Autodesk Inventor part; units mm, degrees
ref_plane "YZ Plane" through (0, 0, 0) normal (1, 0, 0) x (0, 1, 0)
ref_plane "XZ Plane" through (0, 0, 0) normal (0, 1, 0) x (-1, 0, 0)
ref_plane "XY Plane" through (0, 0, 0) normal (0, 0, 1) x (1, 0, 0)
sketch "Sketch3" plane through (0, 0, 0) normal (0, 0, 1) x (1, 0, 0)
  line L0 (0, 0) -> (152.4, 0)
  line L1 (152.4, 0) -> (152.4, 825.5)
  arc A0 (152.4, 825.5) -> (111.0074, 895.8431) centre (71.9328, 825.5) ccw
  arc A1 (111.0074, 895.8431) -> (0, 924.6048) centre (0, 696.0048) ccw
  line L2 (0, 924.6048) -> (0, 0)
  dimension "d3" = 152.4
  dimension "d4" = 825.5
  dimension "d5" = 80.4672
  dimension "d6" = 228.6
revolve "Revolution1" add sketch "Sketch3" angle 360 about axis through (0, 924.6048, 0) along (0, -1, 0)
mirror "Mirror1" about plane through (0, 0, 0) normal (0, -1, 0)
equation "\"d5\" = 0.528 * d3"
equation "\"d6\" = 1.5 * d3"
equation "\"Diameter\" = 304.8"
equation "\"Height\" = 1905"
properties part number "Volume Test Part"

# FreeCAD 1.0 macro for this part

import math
import FreeCAD as App
import Part
import Sketcher
from FreeCAD import Vector
Q = App.Units.Quantity

doc = App.newDocument("Part")
params = doc.addObject("Spreadsheet::Sheet", "Params")
for row, (alias, value) in enumerate([
    ("sketch1_radius", "9 in"),
    ("sketch1_width", "6 in"),
    ("sketch1_height", "32.5 in"),
    ("sketch1_radius2", "3.168 in"),
    ("revolution_angle", "360 deg"),
], start=1):
    params.set(f"A{row}", alias)
    params.set(f"B{row}", "=" + value)
    params.setAlias(f"B{row}", alias)

body = doc.addObject("PartDesign::Body", "Body")

# Sketch on XY plane
sketch1 = body.newObject("Sketcher::SketchObject", "Sketch")
sketch1.AttachmentSupport = (doc.getObject("XY_Plane"), [""])
sketch1.MapMode = "FlatFace"
sketch1.addGeometry([
    Part.LineSegment(Vector(0, 925, 0), Vector(0, 0, 0)),  # 0
    Part.LineSegment(Vector(0, 0, 0), Vector(152, 0, 0)),  # 1
    Part.LineSegment(Vector(152, 0, 0), Vector(152, 826, 0)),  # 2
    Part.ArcOfCircle(Part.Circle(Vector(72, 826, 0), Vector(0, 0, 1), 80), math.radians(0), math.radians(61)),  # 3
    Part.ArcOfCircle(Part.Circle(Vector(0, 696, 0), Vector(0, 0, 1), 229), math.radians(61), math.radians(90)),  # 4
], False)
sketch1.addConstraint([
    Sketcher.Constraint("Coincident", 0, 2, 1, 1),
    Sketcher.Constraint("Coincident", 1, 2, 2, 1),
    Sketcher.Constraint("Tangent", 2, 2, 3, 1),
    Sketcher.Constraint("Tangent", 3, 2, 4, 1),
    Sketcher.Constraint("Coincident", 4, 2, 0, 1),
    Sketcher.Constraint("Vertical", 0),
    Sketcher.Constraint("Horizontal", 1),
    Sketcher.Constraint("Vertical", 2),
    Sketcher.Constraint("Coincident", 0, 2, -1, 1),
    Sketcher.Constraint("PointOnObject", 4, 3, -2),
    Sketcher.Constraint("Radius", 4, Q("9 in")),
    Sketcher.Constraint("DistanceX", 1, 1, 1, 2, Q("6 in")),
    Sketcher.Constraint("DistanceY", 2, 1, 2, 2, Q("32.5 in")),
    Sketcher.Constraint("Radius", 3, Q("3.168 in")),
])
sketch1.setExpression("Constraints[10]", "Params.sketch1_radius")
sketch1.setExpression("Constraints[11]", "Params.sketch1_width")
sketch1.setExpression("Constraints[12]", "Params.sketch1_height")
sketch1.setExpression("Constraints[13]", "Params.sketch1_radius2")
revolution = body.newObject("PartDesign::Revolution", "Revolution")
revolution.Profile = sketch1
revolution.ReferenceAxis = (sketch1, ["V_Axis"])
revolution.setExpression("Angle", "Params.revolution_angle")
doc.recompute()

mirrored = body.newObject("PartDesign::Mirrored", "Mirrored")
mirrored.TransformMode = "Transform body"
mirrored.MirrorPlane = (doc.getObject("XZ_Plane"), [""])
body.Tip = mirrored

doc.recompute()
